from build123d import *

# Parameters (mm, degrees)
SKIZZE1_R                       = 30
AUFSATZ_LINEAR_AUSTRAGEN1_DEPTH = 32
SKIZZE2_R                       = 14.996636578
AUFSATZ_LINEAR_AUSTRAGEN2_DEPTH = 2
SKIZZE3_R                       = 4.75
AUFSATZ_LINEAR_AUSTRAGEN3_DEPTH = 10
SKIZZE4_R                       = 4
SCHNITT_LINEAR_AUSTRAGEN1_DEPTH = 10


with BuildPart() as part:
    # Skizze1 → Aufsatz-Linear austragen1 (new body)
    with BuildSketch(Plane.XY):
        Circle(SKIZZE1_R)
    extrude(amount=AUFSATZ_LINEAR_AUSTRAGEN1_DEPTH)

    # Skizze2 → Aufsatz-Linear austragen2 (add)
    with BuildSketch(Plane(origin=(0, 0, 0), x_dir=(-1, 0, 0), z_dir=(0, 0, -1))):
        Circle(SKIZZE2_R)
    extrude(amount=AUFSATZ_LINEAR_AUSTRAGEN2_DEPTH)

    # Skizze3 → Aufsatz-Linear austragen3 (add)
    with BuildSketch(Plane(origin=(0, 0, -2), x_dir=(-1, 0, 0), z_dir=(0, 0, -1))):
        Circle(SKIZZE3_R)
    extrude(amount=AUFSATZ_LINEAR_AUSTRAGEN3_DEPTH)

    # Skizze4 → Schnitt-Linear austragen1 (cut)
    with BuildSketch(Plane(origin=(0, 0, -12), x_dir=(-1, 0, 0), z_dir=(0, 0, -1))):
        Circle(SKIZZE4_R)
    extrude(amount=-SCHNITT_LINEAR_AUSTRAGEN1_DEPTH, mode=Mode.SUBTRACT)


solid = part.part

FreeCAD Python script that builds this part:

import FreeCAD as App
import Part
import Sketcher

V = App.Vector
Q = App.Units.Quantity

doc = App.newDocument("Part")
params = doc.addObject("Spreadsheet::Sheet", "Params")
for row, (alias, value) in enumerate([
    ("sketch1_diameter", "60 mm"),
    ("pad1_length", "32 mm"),
    ("pad2_length", "2 mm"),
    ("sketch3_diameter", "9.5 mm"),
    ("pad3_length", "10 mm"),
    ("sketch4_diameter", "8 mm"),
    ("pocket1_length", "10 mm"),
], start=1):
    params.set(f"A{row}", alias)
    params.set(f"B{row}", "=" + value)
    params.setAlias(f"B{row}", alias)

body = doc.addObject("PartDesign::Body", "Body")

# Sketch on XY plane
sketch1 = doc.addObject("Sketcher::SketchObject", "Sketch")
body.addObject(sketch1)
sketch1.AttachmentSupport = (doc.XY_Plane, [""])
sketch1.MapMode = "FlatFace"
sketch1.addGeometry(Part.Circle(V(0, 0, 0), V(0, 0, 1), 30), False)
sketch1.addConstraint([
    Sketcher.Constraint("Coincident", 0, 3, -1, 1),
    Sketcher.Constraint("Diameter", 0, Q("60 mm")),
])
sketch1.setExpression("Constraints[1]", "Params.sketch1_diameter")
pad1 = doc.addObject("PartDesign::Pad", "Pad")
body.addObject(pad1)
pad1.Profile = sketch1
pad1.setExpression("Length", "Params.pad1_length")

# Sketch on XY plane
sketch2 = doc.addObject("Sketcher::SketchObject", "Sketch001")
body.addObject(sketch2)
sketch2.AttachmentSupport = (doc.XY_Plane, [""])
sketch2.MapMode = "FlatFace"
sketch2.addGeometry(Part.Circle(V(0, 0, 0), V(0, 0, 1), 15), False)
sketch2.addConstraint([
    Sketcher.Constraint("Coincident", 0, 3, -1, 1),
    Sketcher.Constraint("Diameter", 0, Q("29.993273 mm")),
])
pad2 = doc.addObject("PartDesign::Pad", "Pad001")
body.addObject(pad2)
pad2.Profile = sketch2
pad2.setExpression("Length", "Params.pad2_length")
pad2.Reversed = True

# Sketch on XY plane
sketch3 = doc.addObject("Sketcher::SketchObject", "Sketch002")
body.addObject(sketch3)
sketch3.AttachmentSupport = (doc.XY_Plane, [""])
sketch3.MapMode = "FlatFace"
sketch3.AttachmentOffset = App.Placement(V(0, 0, -2), App.Rotation())
sketch3.addGeometry(Part.Circle(V(0, 0, 0), V(0, 0, 1), 4.8), False)
sketch3.addConstraint([
    Sketcher.Constraint("Coincident", 0, 3, -1, 1),
    Sketcher.Constraint("Diameter", 0, Q("9.5 mm")),
])
sketch3.setExpression("Constraints[1]", "Params.sketch3_diameter")
pad3 = doc.addObject("PartDesign::Pad", "Pad002")
body.addObject(pad3)
pad3.Profile = sketch3
pad3.setExpression("Length", "Params.pad3_length")
pad3.Reversed = True

# Sketch on XY plane
sketch4 = doc.addObject("Sketcher::SketchObject", "Sketch003")
body.addObject(sketch4)
sketch4.AttachmentSupport = (doc.XY_Plane, [""])
sketch4.MapMode = "FlatFace"
sketch4.AttachmentOffset = App.Placement(V(0, 0, -12), App.Rotation())
sketch4.addGeometry(Part.Circle(V(0, 0, 0), V(0, 0, 1), 4), False)
sketch4.addConstraint([
    Sketcher.Constraint("Coincident", 0, 3, -1, 1),
    Sketcher.Constraint("Diameter", 0, Q("8 mm")),
])
sketch4.setExpression("Constraints[1]", "Params.sketch4_diameter")
pocket1 = doc.addObject("PartDesign::Pocket", "Pocket")
body.addObject(pocket1)
pocket1.Profile = sketch4
pocket1.setExpression("Length", "Params.pocket1_length")
pocket1.Reversed = True

doc.recompute()
